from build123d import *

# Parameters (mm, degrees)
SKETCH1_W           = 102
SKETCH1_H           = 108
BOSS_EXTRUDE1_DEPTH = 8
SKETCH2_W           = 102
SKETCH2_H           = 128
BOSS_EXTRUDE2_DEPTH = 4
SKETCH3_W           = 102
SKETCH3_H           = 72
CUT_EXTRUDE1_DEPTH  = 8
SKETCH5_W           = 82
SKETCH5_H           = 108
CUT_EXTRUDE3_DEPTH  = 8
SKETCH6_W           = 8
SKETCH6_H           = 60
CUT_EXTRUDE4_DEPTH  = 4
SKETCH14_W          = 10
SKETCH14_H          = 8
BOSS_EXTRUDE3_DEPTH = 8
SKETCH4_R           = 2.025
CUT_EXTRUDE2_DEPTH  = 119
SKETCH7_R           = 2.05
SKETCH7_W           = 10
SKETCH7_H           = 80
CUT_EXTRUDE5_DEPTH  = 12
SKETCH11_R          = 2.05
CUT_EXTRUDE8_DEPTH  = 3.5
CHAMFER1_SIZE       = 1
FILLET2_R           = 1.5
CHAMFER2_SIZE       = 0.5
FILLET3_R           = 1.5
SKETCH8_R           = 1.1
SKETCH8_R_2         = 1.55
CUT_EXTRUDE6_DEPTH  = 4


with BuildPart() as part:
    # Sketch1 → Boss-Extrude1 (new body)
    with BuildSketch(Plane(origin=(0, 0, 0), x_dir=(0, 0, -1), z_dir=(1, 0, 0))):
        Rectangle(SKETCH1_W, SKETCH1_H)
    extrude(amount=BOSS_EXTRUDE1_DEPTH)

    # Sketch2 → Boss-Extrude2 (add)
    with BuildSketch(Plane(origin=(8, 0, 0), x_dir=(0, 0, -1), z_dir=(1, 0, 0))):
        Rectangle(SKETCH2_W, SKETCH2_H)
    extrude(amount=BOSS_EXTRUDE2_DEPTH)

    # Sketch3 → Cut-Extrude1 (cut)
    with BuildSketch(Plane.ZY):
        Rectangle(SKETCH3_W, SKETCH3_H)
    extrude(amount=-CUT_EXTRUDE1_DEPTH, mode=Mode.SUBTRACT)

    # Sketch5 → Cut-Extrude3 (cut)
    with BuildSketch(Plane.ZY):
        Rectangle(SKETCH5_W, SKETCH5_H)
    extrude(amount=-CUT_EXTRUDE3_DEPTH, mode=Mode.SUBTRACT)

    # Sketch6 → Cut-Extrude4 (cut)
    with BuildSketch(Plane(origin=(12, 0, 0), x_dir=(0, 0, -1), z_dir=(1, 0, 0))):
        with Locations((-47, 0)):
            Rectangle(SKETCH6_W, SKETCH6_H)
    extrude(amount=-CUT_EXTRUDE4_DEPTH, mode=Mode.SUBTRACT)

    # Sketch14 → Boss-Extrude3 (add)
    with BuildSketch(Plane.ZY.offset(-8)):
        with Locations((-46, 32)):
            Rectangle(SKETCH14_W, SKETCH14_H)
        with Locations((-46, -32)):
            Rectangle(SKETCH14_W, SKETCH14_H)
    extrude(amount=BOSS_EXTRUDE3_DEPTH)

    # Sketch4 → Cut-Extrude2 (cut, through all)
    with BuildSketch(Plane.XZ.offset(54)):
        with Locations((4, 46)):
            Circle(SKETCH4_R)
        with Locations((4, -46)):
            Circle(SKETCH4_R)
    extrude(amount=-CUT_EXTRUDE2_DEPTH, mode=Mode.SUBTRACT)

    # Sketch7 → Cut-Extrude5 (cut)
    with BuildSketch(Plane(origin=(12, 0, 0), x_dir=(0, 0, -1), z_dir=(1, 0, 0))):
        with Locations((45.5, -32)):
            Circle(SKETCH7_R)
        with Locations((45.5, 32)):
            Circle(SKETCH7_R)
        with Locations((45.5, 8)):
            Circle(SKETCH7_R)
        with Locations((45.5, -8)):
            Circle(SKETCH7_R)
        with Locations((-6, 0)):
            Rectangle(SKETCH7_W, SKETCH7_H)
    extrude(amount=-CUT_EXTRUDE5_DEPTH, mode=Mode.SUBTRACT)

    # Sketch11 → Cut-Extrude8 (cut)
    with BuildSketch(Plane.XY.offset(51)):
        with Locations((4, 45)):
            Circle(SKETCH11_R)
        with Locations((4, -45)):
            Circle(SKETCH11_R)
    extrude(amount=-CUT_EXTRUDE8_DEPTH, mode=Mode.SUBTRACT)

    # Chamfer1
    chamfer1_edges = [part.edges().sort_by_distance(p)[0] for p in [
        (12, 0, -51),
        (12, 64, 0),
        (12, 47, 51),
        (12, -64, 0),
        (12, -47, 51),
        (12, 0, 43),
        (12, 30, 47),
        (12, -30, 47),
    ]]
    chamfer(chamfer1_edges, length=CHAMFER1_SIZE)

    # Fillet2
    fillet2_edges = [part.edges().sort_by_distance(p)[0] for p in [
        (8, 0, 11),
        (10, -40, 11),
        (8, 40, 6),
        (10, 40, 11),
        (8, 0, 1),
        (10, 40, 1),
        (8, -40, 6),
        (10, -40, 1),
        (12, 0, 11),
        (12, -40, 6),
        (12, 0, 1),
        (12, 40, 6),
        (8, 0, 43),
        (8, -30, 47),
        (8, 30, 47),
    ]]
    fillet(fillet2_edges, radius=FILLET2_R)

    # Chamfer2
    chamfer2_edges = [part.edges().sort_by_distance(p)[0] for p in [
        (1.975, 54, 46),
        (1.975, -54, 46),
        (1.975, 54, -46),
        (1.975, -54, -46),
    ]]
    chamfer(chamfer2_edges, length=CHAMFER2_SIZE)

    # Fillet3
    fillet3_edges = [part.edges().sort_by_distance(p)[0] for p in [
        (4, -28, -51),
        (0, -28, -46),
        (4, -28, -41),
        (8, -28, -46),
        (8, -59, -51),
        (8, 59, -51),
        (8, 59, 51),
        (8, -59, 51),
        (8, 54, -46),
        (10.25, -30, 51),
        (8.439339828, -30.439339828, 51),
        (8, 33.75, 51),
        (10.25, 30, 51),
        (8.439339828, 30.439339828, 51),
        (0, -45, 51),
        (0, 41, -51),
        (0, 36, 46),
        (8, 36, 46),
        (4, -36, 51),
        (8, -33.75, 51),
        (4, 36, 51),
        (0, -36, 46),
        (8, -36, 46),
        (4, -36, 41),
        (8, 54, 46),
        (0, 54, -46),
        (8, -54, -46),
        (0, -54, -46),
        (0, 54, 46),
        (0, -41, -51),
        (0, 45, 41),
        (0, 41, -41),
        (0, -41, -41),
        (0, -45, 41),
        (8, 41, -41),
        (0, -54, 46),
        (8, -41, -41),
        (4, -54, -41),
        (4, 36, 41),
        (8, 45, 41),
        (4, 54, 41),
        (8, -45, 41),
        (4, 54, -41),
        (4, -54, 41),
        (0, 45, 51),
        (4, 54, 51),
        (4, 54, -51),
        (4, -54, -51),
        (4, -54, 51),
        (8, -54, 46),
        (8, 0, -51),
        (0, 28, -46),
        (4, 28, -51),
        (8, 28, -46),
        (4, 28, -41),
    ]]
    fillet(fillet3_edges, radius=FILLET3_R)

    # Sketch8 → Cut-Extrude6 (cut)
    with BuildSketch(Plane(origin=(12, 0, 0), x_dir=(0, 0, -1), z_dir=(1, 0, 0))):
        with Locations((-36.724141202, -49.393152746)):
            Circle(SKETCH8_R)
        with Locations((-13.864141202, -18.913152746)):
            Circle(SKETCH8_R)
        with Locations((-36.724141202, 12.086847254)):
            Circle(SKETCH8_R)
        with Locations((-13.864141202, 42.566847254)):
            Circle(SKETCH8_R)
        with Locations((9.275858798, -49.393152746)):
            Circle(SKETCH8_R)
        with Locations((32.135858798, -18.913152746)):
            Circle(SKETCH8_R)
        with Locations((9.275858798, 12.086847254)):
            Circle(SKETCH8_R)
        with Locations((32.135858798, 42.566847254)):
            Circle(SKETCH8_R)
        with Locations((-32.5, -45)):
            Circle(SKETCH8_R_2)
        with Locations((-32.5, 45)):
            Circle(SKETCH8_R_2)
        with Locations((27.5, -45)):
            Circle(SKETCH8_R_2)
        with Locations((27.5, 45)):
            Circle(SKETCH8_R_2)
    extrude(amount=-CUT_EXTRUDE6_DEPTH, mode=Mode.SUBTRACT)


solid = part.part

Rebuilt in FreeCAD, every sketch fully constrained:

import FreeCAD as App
import Part
import Sketcher


def edges_at(feature, points):
    """Names of the edges that pass closest to the given points."""
    edges = feature.Shape.Edges
    near = lambda p: min(range(len(edges)), key=lambda i: edges[i].distToShape(Part.Vertex(*p))[0])
    return sorted({f"Edge{near(p) + 1}" for p in points})

doc = App.newDocument("Part")
body = doc.addObject("PartDesign::Body", "Body")

# Sketch on YZ plane
sketch1 = body.newObject("Sketcher::SketchObject", "Sketch")
sketch1.AttachmentSupport = (doc.getObject("YZ_Plane"), [""])
sketch1.MapMode = "FlatFace"
sketch1.addGeometry(Part.LineSegment(App.Vector(54, 51, 0), App.Vector(-54, 51, 0)), False)
sketch1.addGeometry(Part.LineSegment(App.Vector(-54, 51, 0), App.Vector(-54, -51, 0)), False)
sketch1.addGeometry(Part.LineSegment(App.Vector(-54, -51, 0), App.Vector(54, -51, 0)), False)
sketch1.addGeometry(Part.LineSegment(App.Vector(54, -51, 0), App.Vector(54, 51, 0)), False)
sketch1.addConstraint(Sketcher.Constraint("Coincident", 0, 2, 1, 1))
sketch1.addConstraint(Sketcher.Constraint("Coincident", 1, 2, 2, 1))
sketch1.addConstraint(Sketcher.Constraint("Coincident", 2, 2, 3, 1))
sketch1.addConstraint(Sketcher.Constraint("Coincident", 3, 2, 0, 1))
sketch1.addConstraint(Sketcher.Constraint("Horizontal", 0))
sketch1.addConstraint(Sketcher.Constraint("Vertical", 1))
sketch1.addConstraint(Sketcher.Constraint("Horizontal", 2))
sketch1.addConstraint(Sketcher.Constraint("Vertical", 3))
sketch1.addConstraint(Sketcher.Constraint("Symmetric", 0, 2, 2, 2, -1, 1))
sketch1.addConstraint(Sketcher.Constraint("DistanceX", 0, 2, 0, 1, 108.0))
sketch1.addConstraint(Sketcher.Constraint("DistanceY", 1, 2, 1, 1, 102.0))
pad1 = body.newObject("PartDesign::Pad", "Pad")
pad1.Profile = sketch1
pad1.Length = 8

# Sketch on YZ plane
sketch2 = body.newObject("Sketcher::SketchObject", "Sketch001")
sketch2.AttachmentSupport = (doc.getObject("YZ_Plane"), [""])
sketch2.MapMode = "FlatFace"
sketch2.AttachmentOffset = App.Placement(App.Vector(0, 0, 8), App.Rotation())
sketch2.addGeometry(Part.LineSegment(App.Vector(64, 51, 0), App.Vector(-64, 51, 0)), False)
sketch2.addGeometry(Part.LineSegment(App.Vector(-64, 51, 0), App.Vector(-64, -51, 0)), False)
sketch2.addGeometry(Part.LineSegment(App.Vector(-64, -51, 0), App.Vector(64, -51, 0)), False)
sketch2.addGeometry(Part.LineSegment(App.Vector(64, -51, 0), App.Vector(64, 51, 0)), False)
sketch2.addConstraint(Sketcher.Constraint("Coincident", 0, 2, 1, 1))
sketch2.addConstraint(Sketcher.Constraint("Coincident", 1, 2, 2, 1))
sketch2.addConstraint(Sketcher.Constraint("Coincident", 2, 2, 3, 1))
sketch2.addConstraint(Sketcher.Constraint("Coincident", 3, 2, 0, 1))
sketch2.addConstraint(Sketcher.Constraint("Horizontal", 0))
sketch2.addConstraint(Sketcher.Constraint("Vertical", 1))
sketch2.addConstraint(Sketcher.Constraint("Horizontal", 2))
sketch2.addConstraint(Sketcher.Constraint("Vertical", 3))
sketch2.addConstraint(Sketcher.Constraint("Symmetric", 0, 2, 2, 2, -1, 1))
sketch2.addConstraint(Sketcher.Constraint("DistanceX", 0, 2, 0, 1, 128.0))
sketch2.addConstraint(Sketcher.Constraint("DistanceY", 1, 2, 1, 1, 102.0))
pad2 = body.newObject("PartDesign::Pad", "Pad001")
pad2.Profile = sketch2
pad2.Length = 4

# Sketch on YZ plane
sketch3 = body.newObject("Sketcher::SketchObject", "Sketch002")
sketch3.AttachmentSupport = (doc.getObject("YZ_Plane"), [""])
sketch3.MapMode = "FlatFace"
sketch3.addGeometry(Part.LineSegment(App.Vector(36, -51, 0), App.Vector(-36, -51, 0)), False)
sketch3.addGeometry(Part.LineSegment(App.Vector(-36, -51, 0), App.Vector(-36, 51, 0)), False)
sketch3.addGeometry(Part.LineSegment(App.Vector(-36, 51, 0), App.Vector(36, 51, 0)), False)
sketch3.addGeometry(Part.LineSegment(App.Vector(36, 51, 0), App.Vector(36, -51, 0)), False)
sketch3.addConstraint(Sketcher.Constraint("Coincident", 0, 2, 1, 1))
sketch3.addConstraint(Sketcher.Constraint("Coincident", 1, 2, 2, 1))
sketch3.addConstraint(Sketcher.Constraint("Coincident", 2, 2, 3, 1))
sketch3.addConstraint(Sketcher.Constraint("Coincident", 3, 2, 0, 1))
sketch3.addConstraint(Sketcher.Constraint("Horizontal", 0))
sketch3.addConstraint(Sketcher.Constraint("Vertical", 1))
sketch3.addConstraint(Sketcher.Constraint("Horizontal", 2))
sketch3.addConstraint(Sketcher.Constraint("Vertical", 3))
sketch3.addConstraint(Sketcher.Constraint("Symmetric", 0, 2, 2, 2, -1, 1))
sketch3.addConstraint(Sketcher.Constraint("DistanceX", 0, 2, 0, 1, 72.0))
sketch3.addConstraint(Sketcher.Constraint("DistanceY", 1, 1, 1, 2, 102.0))
pocket1 = body.newObject("PartDesign::Pocket", "Pocket")
pocket1.Profile = sketch3
pocket1.Length = 8
pocket1.Reversed = True

# Sketch on YZ plane
sketch4 = body.newObject("Sketcher::SketchObject", "Sketch003")
sketch4.AttachmentSupport = (doc.getObject("YZ_Plane"), [""])
sketch4.MapMode = "FlatFace"
sketch4.addGeometry(Part.LineSegment(App.Vector(54, -41, 0), App.Vector(-54, -41, 0)), False)
sketch4.addGeometry(Part.LineSegment(App.Vector(-54, -41, 0), App.Vector(-54, 41, 0)), False)
sketch4.addGeometry(Part.LineSegment(App.Vector(-54, 41, 0), App.Vector(54, 41, 0)), False)
sketch4.addGeometry(Part.LineSegment(App.Vector(54, 41, 0), App.Vector(54, -41, 0)), False)
sketch4.addConstraint(Sketcher.Constraint("Coincident", 0, 2, 1, 1))
sketch4.addConstraint(Sketcher.Constraint("Coincident", 1, 2, 2, 1))
sketch4.addConstraint(Sketcher.Constraint("Coincident", 2, 2, 3, 1))
sketch4.addConstraint(Sketcher.Constraint("Coincident", 3, 2, 0, 1))
sketch4.addConstraint(Sketcher.Constraint("Horizontal", 0))
sketch4.addConstraint(Sketcher.Constraint("Vertical", 1))
sketch4.addConstraint(Sketcher.Constraint("Horizontal", 2))
sketch4.addConstraint(Sketcher.Constraint("Vertical", 3))
sketch4.addConstraint(Sketcher.Constraint("Symmetric", 0, 2, 2, 2, -1, 1))
sketch4.addConstraint(Sketcher.Constraint("DistanceX", 0, 2, 0, 1, 108.0))
sketch4.addConstraint(Sketcher.Constraint("DistanceY", 1, 1, 1, 2, 82.0))
pocket2 = body.newObject("PartDesign::Pocket", "Pocket001")
pocket2.Profile = sketch4
pocket2.Length = 8
pocket2.Reversed = True

# Sketch on YZ plane
sketch5 = body.newObject("Sketcher::SketchObject", "Sketch004")
sketch5.AttachmentSupport = (doc.getObject("YZ_Plane"), [""])
sketch5.MapMode = "FlatFace"
sketch5.AttachmentOffset = App.Placement(App.Vector(0, 0, 12), App.Rotation())
sketch5.addGeometry(Part.LineSegment(App.Vector(30, 51, 0), App.Vector(-30, 51, 0)), False)
sketch5.addGeometry(Part.LineSegment(App.Vector(-30, 51, 0), App.Vector(-30, 43, 0)), False)
sketch5.addGeometry(Part.LineSegment(App.Vector(-30, 43, 0), App.Vector(30, 43, 0)), False)
sketch5.addGeometry(Part.LineSegment(App.Vector(30, 43, 0), App.Vector(30, 51, 0)), False)
sketch5.addConstraint(Sketcher.Constraint("Coincident", 0, 2, 1, 1))
sketch5.addConstraint(Sketcher.Constraint("Coincident", 1, 2, 2, 1))
sketch5.addConstraint(Sketcher.Constraint("Coincident", 2, 2, 3, 1))
sketch5.addConstraint(Sketcher.Constraint("Coincident", 3, 2, 0, 1))
sketch5.addConstraint(Sketcher.Constraint("Horizontal", 0))
sketch5.addConstraint(Sketcher.Constraint("Vertical", 1))
sketch5.addConstraint(Sketcher.Constraint("Horizontal", 2))
sketch5.addConstraint(Sketcher.Constraint("Vertical", 3))
sketch5.addConstraint(Sketcher.Constraint("DistanceX", 0, 2, 0, 1, 60.0))
sketch5.addConstraint(Sketcher.Constraint("DistanceY", 1, 2, 1, 1, 8.0))
sketch5.addConstraint(Sketcher.Constraint("DistanceX", 0, 2, -1, 1, 30.0))
sketch5.addConstraint(Sketcher.Constraint("DistanceY", -1, 1, 0, 2, 51.0))
pocket3 = body.newObject("PartDesign::Pocket", "Pocket002")
pocket3.Profile = sketch5
pocket3.Length = 4

# Sketch on YZ plane
sketch6 = body.newObject("Sketcher::SketchObject", "Sketch005")
sketch6.AttachmentSupport = (doc.getObject("YZ_Plane"), [""])
sketch6.MapMode = "FlatFace"
sketch6.AttachmentOffset = App.Placement(App.Vector(0, 0, 8), App.Rotation())
sketch6.addGeometry(Part.LineSegment(App.Vector(36, -51, 0), App.Vector(28, -51, 0)), False)
sketch6.addGeometry(Part.LineSegment(App.Vector(28, -51, 0), App.Vector(28, -41, 0)), False)
sketch6.addGeometry(Part.LineSegment(App.Vector(28, -41, 0), App.Vector(36, -41, 0)), False)
sketch6.addGeometry(Part.LineSegment(App.Vector(36, -41, 0), App.Vector(36, -51, 0)), False)
sketch6.addGeometry(Part.LineSegment(App.Vector(-28, -51, 0), App.Vector(-36, -51, 0)), False)
sketch6.addGeometry(Part.LineSegment(App.Vector(-36, -51, 0), App.Vector(-36, -41, 0)), False)
sketch6.addGeometry(Part.LineSegment(App.Vector(-36, -41, 0), App.Vector(-28, -41, 0)), False)
sketch6.addGeometry(Part.LineSegment(App.Vector(-28, -41, 0), App.Vector(-28, -51, 0)), False)
sketch6.addConstraint(Sketcher.Constraint("Coincident", 0, 2, 1, 1))
sketch6.addConstraint(Sketcher.Constraint("Coincident", 1, 2, 2, 1))
sketch6.addConstraint(Sketcher.Constraint("Coincident", 2, 2, 3, 1))
sketch6.addConstraint(Sketcher.Constraint("Coincident", 3, 2, 0, 1))
sketch6.addConstraint(Sketcher.Constraint("Coincident", 4, 2, 5, 1))
sketch6.addConstraint(Sketcher.Constraint("Coincident", 5, 2, 6, 1))
sketch6.addConstraint(Sketcher.Constraint("Coincident", 6, 2, 7, 1))
sketch6.addConstraint(Sketcher.Constraint("Coincident", 7, 2, 4, 1))
sketch6.addConstraint(Sketcher.Constraint("Horizontal", 0))
sketch6.addConstraint(Sketcher.Constraint("Vertical", 1))
sketch6.addConstraint(Sketcher.Constraint("Horizontal", 2))
sketch6.addConstraint(Sketcher.Constraint("Vertical", 3))
sketch6.addConstraint(Sketcher.Constraint("Horizontal", 4))
sketch6.addConstraint(Sketcher.Constraint("Vertical", 5))
sketch6.addConstraint(Sketcher.Constraint("Horizontal", 6))
sketch6.addConstraint(Sketcher.Constraint("Vertical", 7))
sketch6.addConstraint(Sketcher.Constraint("Symmetric", 3, 2, 4, 2, -2))
sketch6.addConstraint(Sketcher.Constraint("Symmetric", 1, 2, 6, 2, -2))
sketch6.addConstraint(Sketcher.Constraint("DistanceX", 0, 2, 0, 1, 8.0))
sketch6.addConstraint(Sketcher.Constraint("DistanceY", 1, 1, 1, 2, 10.0))
sketch6.addConstraint(Sketcher.Constraint("DistanceX", -1, 1, 0, 2, 28.0))
sketch6.addConstraint(Sketcher.Constraint("DistanceY", 0, 2, -1, 1, 51.0))
pad3 = body.newObject("PartDesign::Pad", "Pad002")
pad3.Profile = sketch6
pad3.Length = 8
pad3.Reversed = True

# Sketch on XZ plane
sketch7 = body.newObject("Sketcher::SketchObject", "Sketch006")
sketch7.AttachmentSupport = (doc.getObject("XZ_Plane"), [""])
sketch7.MapMode = "FlatFace"
sketch7.AttachmentOffset = App.Placement(App.Vector(0, 0, 54), App.Rotation())
sketch7.addGeometry(Part.Circle(App.Vector(4, 46, 0), App.Vector(0, 0, 1), 2), False)
sketch7.addGeometry(Part.Circle(App.Vector(4, -46, 0), App.Vector(0, 0, 1), 2), False)
sketch7.addConstraint(Sketcher.Constraint("Equal", 0, 1))
sketch7.addConstraint(Sketcher.Constraint("Symmetric", 0, 3, 1, 3, -1))
sketch7.addConstraint(Sketcher.Constraint("Diameter", 0, 4.05))
sketch7.addConstraint(Sketcher.Constraint("DistanceX", -1, 1, 0, 3, 4.0))
sketch7.addConstraint(Sketcher.Constraint("DistanceY", -1, 1, 0, 3, 46.0))
pocket4 = body.newObject("PartDesign::Pocket", "Pocket003")
pocket4.Profile = sketch7
pocket4.Type = "ThroughAll"

# Sketch on YZ plane
sketch8 = body.newObject("Sketcher::SketchObject", "Sketch007")
sketch8.AttachmentSupport = (doc.getObject("YZ_Plane"), [""])
sketch8.MapMode = "FlatFace"
sketch8.AttachmentOffset = App.Placement(App.Vector(0, 0, 12), App.Rotation())
sketch8.addGeometry(Part.Circle(App.Vector(-32, -45.5, 0), App.Vector(0, 0, 1), 2), False)
sketch8.addGeometry(Part.Circle(App.Vector(32, -45.5, 0), App.Vector(0, 0, 1), 2), False)
sketch8.addGeometry(Part.Circle(App.Vector(8, -45.5, 0), App.Vector(0, 0, 1), 2), False)
sketch8.addGeometry(Part.Circle(App.Vector(-8, -45.5, 0), App.Vector(0, 0, 1), 2), False)
sketch8.addGeometry(Part.LineSegment(App.Vector(40, 11, 0), App.Vector(-40, 11, 0)), False)
sketch8.addGeometry(Part.LineSegment(App.Vector(-40, 11, 0), App.Vector(-40, 1, 0)), False)
sketch8.addGeometry(Part.LineSegment(App.Vector(-40, 1, 0), App.Vector(40, 1, 0)), False)
sketch8.addGeometry(Part.LineSegment(App.Vector(40, 1, 0), App.Vector(40, 11, 0)), False)
sketch8.addConstraint(Sketcher.Constraint("Coincident", 4, 2, 5, 1))
sketch8.addConstraint(Sketcher.Constraint("Coincident", 5, 2, 6, 1))
sketch8.addConstraint(Sketcher.Constraint("Coincident", 6, 2, 7, 1))
sketch8.addConstraint(Sketcher.Constraint("Coincident", 7, 2, 4, 1))
sketch8.addConstraint(Sketcher.Constraint("Horizontal", 4))
sketch8.addConstraint(Sketcher.Constraint("Vertical", 5))
sketch8.addConstraint(Sketcher.Constraint("Horizontal", 6))
sketch8.addConstraint(Sketcher.Constraint("Vertical", 7))
sketch8.addConstraint(Sketcher.Constraint("Equal", 0, 1))
sketch8.addConstraint(Sketcher.Constraint("Equal", 1, 2))
sketch8.addConstraint(Sketcher.Constraint("Equal", 2, 3))
sketch8.addConstraint(Sketcher.Constraint("Symmetric", 0, 3, 1, 3, -2))
sketch8.addConstraint(Sketcher.Constraint("Symmetric", 2, 3, 3, 3, -2))
sketch8.addConstraint(Sketcher.Constraint("Horizontal", 1, 3, 2, 3))
sketch8.addConstraint(Sketcher.Constraint("Diameter", 0, 4.1))
sketch8.addConstraint(Sketcher.Constraint("DistanceX", 4, 2, 4, 1, 80.0))
sketch8.addConstraint(Sketcher.Constraint("DistanceY", 5, 2, 5, 1, 10.0))
sketch8.addConstraint(Sketcher.Constraint("DistanceX", 0, 3, -1, 1, 32.0))
sketch8.addConstraint(Sketcher.Constraint("DistanceX", -1, 1, 2, 3, 8.0))
sketch8.addConstraint(Sketcher.Constraint("DistanceX", 4, 2, -1, 1, 40.0))
sketch8.addConstraint(Sketcher.Constraint("DistanceY", -1, 1, 4, 2, 11.0))
sketch8.addConstraint(Sketcher.Constraint("DistanceY", 0, 3, -1, 1, 45.5))
pocket5 = body.newObject("PartDesign::Pocket", "Pocket004")
pocket5.Profile = sketch8
pocket5.Length = 12

# Sketch on XY plane
sketch9 = body.newObject("Sketcher::SketchObject", "Sketch008")
sketch9.AttachmentSupport = (doc.getObject("XY_Plane"), [""])
sketch9.MapMode = "FlatFace"
sketch9.AttachmentOffset = App.Placement(App.Vector(0, 0, 51), App.Rotation())
sketch9.addGeometry(Part.Circle(App.Vector(4, 45, 0), App.Vector(0, 0, 1), 2), False)
sketch9.addGeometry(Part.Circle(App.Vector(4, -45, 0), App.Vector(0, 0, 1), 2), False)
sketch9.addConstraint(Sketcher.Constraint("Equal", 0, 1))
sketch9.addConstraint(Sketcher.Constraint("Symmetric", 0, 3, 1, 3, -1))
sketch9.addConstraint(Sketcher.Constraint("Diameter", 0, 4.1))
sketch9.addConstraint(Sketcher.Constraint("DistanceX", -1, 1, 0, 3, 4.0))
sketch9.addConstraint(Sketcher.Constraint("DistanceY", -1, 1, 0, 3, 45.0))
pocket6 = body.newObject("PartDesign::Pocket", "Pocket005")
pocket6.Profile = sketch9
pocket6.Length = 3.5
doc.recompute()

chamfer = body.newObject("PartDesign::Chamfer", "Chamfer")
chamfer.Base = (pocket6, edges_at(pocket6, [
    (12, 0, -51),
    (12, 64, 0),
    (12, 47, 51),
    (12, -64, 0),
    (12, -47, 51),
    (12, 0, 43),
    (12, 30, 47),
    (12, -30, 47),
]))
chamfer.Size = 1
doc.recompute()

fillet = body.newObject("PartDesign::Fillet", "Fillet")
fillet.Base = (chamfer, edges_at(chamfer, [
    (8, 0, 11),
    (10, -40, 11),
    (8, 40, 6),
    (10, 40, 11),
    (8, 0, 1),
    (10, 40, 1),
    (8, -40, 6),
    (10, -40, 1),
    (12, 0, 11),
    (12, -40, 6),
    (12, 0, 1),
    (12, 40, 6),
    (8, 0, 43),
    (8, -30, 47),
    (8, 30, 47),
]))
fillet.Radius = 1.5
doc.recompute()

chamfer2 = body.newObject("PartDesign::Chamfer", "Chamfer001")
chamfer2.Base = (fillet, edges_at(fillet, [
    (1.975, 54, 46),
    (1.975, -54, 46),
    (1.975, 54, -46),
    (1.975, -54, -46),
]))
chamfer2.Size = 0.5
doc.recompute()

fillet2 = body.newObject("PartDesign::Fillet", "Fillet001")
fillet2.Base = (chamfer2, edges_at(chamfer2, [
    (4, -28, -51),
    (0, -28, -46),
    (4, -28, -41),
    (8, -28, -46),
    (8, -59, -51),
    (8, 59, -51),
    (8, 59, 51),
    (8, -59, 51),
    (8, 54, -46),
    (10.25, -30, 51),
    (8.439, -30.439, 51),
    (8, 33.75, 51),
    (10.25, 30, 51),
    (8.439, 30.439, 51),
    (0, -45, 51),
    (0, 41, -51),
    (0, 36, 46),
    (8, 36, 46),
    (4, -36, 51),
    (8, -33.75, 51),
    (4, 36, 51),
    (0, -36, 46),
    (8, -36, 46),
    (4, -36, 41),
    (8, 54, 46),
    (0, 54, -46),
    (8, -54, -46),
    (0, -54, -46),
    (0, 54, 46),
    (0, -41, -51),
    (0, 45, 41),
    (0, 41, -41),
    (0, -41, -41),
    (0, -45, 41),
    (8, 41, -41),
    (0, -54, 46),
    (8, -41, -41),
    (4, -54, -41),
    (4, 36, 41),
    (8, 45, 41),
    (4, 54, 41),
    (8, -45, 41),
    (4, 54, -41),
    (4, -54, 41),
    (0, 45, 51),
    (4, 54, 51),
    (4, 54, -51),
    (4, -54, -51),
    (4, -54, 51),
    (8, -54, 46),
    (8, 0, -51),
    (0, 28, -46),
    (4, 28, -51),
    (8, 28, -46),
    (4, 28, -41),
]))
fillet2.Radius = 1.5

# Sketch on YZ plane
sketch10 = body.newObject("Sketcher::SketchObject", "Sketch009")
sketch10.AttachmentSupport = (doc.getObject("YZ_Plane"), [""])
sketch10.MapMode = "FlatFace"
sketch10.AttachmentOffset = App.Placement(App.Vector(0, 0, 12), App.Rotation())
sketch10.addGeometry(Part.Circle(App.Vector(-49.4, 36.7, 0), App.Vector(0, 0, 1), 1.1), False)
sketch10.addGeometry(Part.Circle(App.Vector(-18.9, 13.9, 0), App.Vector(0, 0, 1), 1.1), False)
sketch10.addGeometry(Part.Circle(App.Vector(12.1, 36.7, 0), App.Vector(0, 0, 1), 1.1), False)
sketch10.addGeometry(Part.Circle(App.Vector(42.6, 13.9, 0), App.Vector(0, 0, 1), 1.1), False)
sketch10.addGeometry(Part.Circle(App.Vector(-49.4, -9.3, 0), App.Vector(0, 0, 1), 1.1), False)
sketch10.addGeometry(Part.Circle(App.Vector(-18.9, -32.1, 0), App.Vector(0, 0, 1), 1.1), False)
sketch10.addGeometry(Part.Circle(App.Vector(12.1, -9.3, 0), App.Vector(0, 0, 1), 1.1), False)
sketch10.addGeometry(Part.Circle(App.Vector(42.6, -32.1, 0), App.Vector(0, 0, 1), 1.1), False)
sketch10.addGeometry(Part.Circle(App.Vector(-45, 32.5, 0), App.Vector(0, 0, 1), 1.6), False)
sketch10.addGeometry(Part.Circle(App.Vector(45, 32.5, 0), App.Vector(0, 0, 1), 1.6), False)
sketch10.addGeometry(Part.Circle(App.Vector(-45, -27.5, 0), App.Vector(0, 0, 1), 1.6), False)
sketch10.addGeometry(Part.Circle(App.Vector(45, -27.5, 0), App.Vector(0, 0, 1), 1.6), False)
sketch10.addConstraint(Sketcher.Constraint("Equal", 0, 1))
sketch10.addConstraint(Sketcher.Constraint("Equal", 1, 2))
sketch10.addConstraint(Sketcher.Constraint("Equal", 2, 3))
sketch10.addConstraint(Sketcher.Constraint("Equal", 3, 4))
sketch10.addConstraint(Sketcher.Constraint("Equal", 4, 5))
sketch10.addConstraint(Sketcher.Constraint("Equal", 5, 6))
sketch10.addConstraint(Sketcher.Constraint("Equal", 6, 7))
sketch10.addConstraint(Sketcher.Constraint("Equal", 8, 9))
sketch10.addConstraint(Sketcher.Constraint("Equal", 9, 10))
sketch10.addConstraint(Sketcher.Constraint("Equal", 10, 11))
sketch10.addConstraint(Sketcher.Constraint("Symmetric", 8, 3, 9, 3, -2))
sketch10.addConstraint(Sketcher.Constraint("Symmetric", 10, 3, 11, 3, -2))
sketch10.addConstraint(Sketcher.Constraint("Horizontal", 0, 3, 2, 3))
sketch10.addConstraint(Sketcher.Constraint("Horizontal", 1, 3, 3, 3))
sketch10.addConstraint(Sketcher.Constraint("Horizontal", 4, 3, 6, 3))
sketch10.addConstraint(Sketcher.Constraint("Horizontal", 5, 3, 7, 3))
sketch10.addConstraint(Sketcher.Constraint("Vertical", 0, 3, 4, 3))
sketch10.addConstraint(Sketcher.Constraint("Vertical", 1, 3, 5, 3))
sketch10.addConstraint(Sketcher.Constraint("Vertical", 2, 3, 6, 3))
sketch10.addConstraint(Sketcher.Constraint("Vertical", 3, 3, 7, 3))
sketch10.addConstraint(Sketcher.Constraint("Vertical", 8, 3, 10, 3))
sketch10.addConstraint(Sketcher.Constraint("Diameter", 0, 2.2))
sketch10.addConstraint(Sketcher.Constraint("Diameter", 8, 3.1))
sketch10.addConstraint(Sketcher.Constraint("DistanceX", 8, 3, -1, 1, 45.0))
sketch10.addConstraint(Sketcher.Constraint("DistanceX", 1, 3, 2, 3, 31.0))
sketch10.addConstraint(Sketcher.Constraint("DistanceY", 4, 3, 0, 3, 46.0))
sketch10.addConstraint(Sketcher.Constraint("DistanceY", 5, 3, 1, 3, 46.0))
sketch10.addConstraint(Sketcher.Constraint("DistanceY", 10, 3, 8, 3, 60.0))
sketch10.addConstraint(Sketcher.Constraint("DistanceY", -1, 1, 8, 3, 32.5))
sketch10.addConstraint(Sketcher.Constraint("DistanceX", 0, 3, 1, 3, 30.48))
sketch10.addConstraint(Sketcher.Constraint("DistanceY", 1, 3, 0, 3, 22.86))
sketch10.addConstraint(Sketcher.Constraint("DistanceX", 2, 3, 3, 3, 30.48))
sketch10.addConstraint(Sketcher.Constraint("DistanceY", -1, 1, 0, 3, 36.724141))
sketch10.addConstraint(Sketcher.Constraint("DistanceX", 0, 3, -1, 1, 49.393153))
pocket7 = body.newObject("PartDesign::Pocket", "Pocket006")
pocket7.Profile = sketch10
pocket7.Length = 4

doc.recompute()
